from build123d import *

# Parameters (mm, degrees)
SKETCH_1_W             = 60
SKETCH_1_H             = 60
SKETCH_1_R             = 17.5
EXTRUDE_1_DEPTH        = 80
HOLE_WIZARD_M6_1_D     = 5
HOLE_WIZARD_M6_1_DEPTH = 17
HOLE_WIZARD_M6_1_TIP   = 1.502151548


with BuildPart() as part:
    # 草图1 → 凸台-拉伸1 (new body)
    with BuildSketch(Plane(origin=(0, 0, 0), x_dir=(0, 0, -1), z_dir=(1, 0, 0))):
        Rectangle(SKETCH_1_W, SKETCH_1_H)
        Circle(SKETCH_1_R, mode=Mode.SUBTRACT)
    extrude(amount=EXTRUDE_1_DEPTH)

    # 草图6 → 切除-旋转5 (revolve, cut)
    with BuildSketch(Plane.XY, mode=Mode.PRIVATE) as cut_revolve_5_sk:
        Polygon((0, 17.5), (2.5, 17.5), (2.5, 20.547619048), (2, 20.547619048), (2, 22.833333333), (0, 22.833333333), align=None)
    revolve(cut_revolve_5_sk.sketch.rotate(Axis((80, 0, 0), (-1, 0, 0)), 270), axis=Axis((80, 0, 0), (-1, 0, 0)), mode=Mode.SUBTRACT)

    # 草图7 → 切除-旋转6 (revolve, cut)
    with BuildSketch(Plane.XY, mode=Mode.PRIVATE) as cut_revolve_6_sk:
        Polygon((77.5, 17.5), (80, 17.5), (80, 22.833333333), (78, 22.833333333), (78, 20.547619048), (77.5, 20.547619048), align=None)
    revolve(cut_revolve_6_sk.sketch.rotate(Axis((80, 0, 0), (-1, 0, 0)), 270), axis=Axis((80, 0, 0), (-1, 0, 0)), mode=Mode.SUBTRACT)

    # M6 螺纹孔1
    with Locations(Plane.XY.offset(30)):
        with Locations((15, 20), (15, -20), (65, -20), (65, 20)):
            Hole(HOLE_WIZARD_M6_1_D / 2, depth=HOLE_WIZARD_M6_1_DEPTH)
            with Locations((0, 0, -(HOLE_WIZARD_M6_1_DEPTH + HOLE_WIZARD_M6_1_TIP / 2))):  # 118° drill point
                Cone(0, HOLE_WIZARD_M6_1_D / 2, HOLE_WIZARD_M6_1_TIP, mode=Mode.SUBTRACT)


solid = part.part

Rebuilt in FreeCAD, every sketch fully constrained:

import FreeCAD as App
import Part
import Sketcher
Q = App.Units.Quantity


def add_polygon(sketch, points):
    """Adds a closed chain of lines whose ends are joined by coincident constraints."""
    first, n = sketch.GeometryCount, len(points)
    for a, b in zip(points, points[1:] + points[:1]):
        sketch.addGeometry(Part.LineSegment(App.Vector(*a, 0), App.Vector(*b, 0)), False)
    for i in range(n):
        sketch.addConstraint(Sketcher.Constraint("Coincident", first + i, 2, first + (i + 1) % n, 1))

doc = App.newDocument("Part")
body = doc.addObject("PartDesign::Body", "Body")

# Sketch on YZ plane
sketch1 = body.newObject("Sketcher::SketchObject", "Sketch")
sketch1.AttachmentSupport = (doc.getObject("YZ_Plane"), [""])
sketch1.MapMode = "FlatFace"
add_polygon(sketch1, [(30, 30), (-30, 30), (-30, -30), (30, -30)])  # lines 0-3
sketch1.addGeometry(Part.Circle(App.Vector(0, 0, 0), App.Vector(0, 0, 1), 18), False)  # 4
sketch1.addConstraint(Sketcher.Constraint("Horizontal", 0))
sketch1.addConstraint(Sketcher.Constraint("Vertical", 1))
sketch1.addConstraint(Sketcher.Constraint("Horizontal", 2))
sketch1.addConstraint(Sketcher.Constraint("Vertical", 3))
sketch1.addConstraint(Sketcher.Constraint("Coincident", 4, 3, -1, 1))
sketch1.addConstraint(Sketcher.Constraint("Symmetric", 0, 2, 2, 2, -1, 1))
sketch1.addConstraint(Sketcher.Constraint("Equal", 2, 1))
sketch1.addConstraint(Sketcher.Constraint("Diameter", 4, Q("35 mm")))
sketch1.addConstraint(Sketcher.Constraint("DistanceX", 0, 2, 0, 1, Q("60 mm")))
pad1 = body.newObject("PartDesign::Pad", "Pad")
pad1.Profile = sketch1
pad1.Length = 80

# Sketch on XY plane
sketch2 = body.newObject("Sketcher::SketchObject", "Sketch001")
sketch2.AttachmentSupport = (doc.getObject("XY_Plane"), [""])
sketch2.MapMode = "FlatFace"
add_polygon(sketch2, [(0, 17.5), (2.5, 17.5), (2.5, 20.5), (2, 20.5), (2, 22.8), (0, 22.8)])  # lines 0-5
sketch2.addConstraint(Sketcher.Constraint("Horizontal", 0))
sketch2.addConstraint(Sketcher.Constraint("Vertical", 1))
sketch2.addConstraint(Sketcher.Constraint("Horizontal", 2))
sketch2.addConstraint(Sketcher.Constraint("Vertical", 3))
sketch2.addConstraint(Sketcher.Constraint("Horizontal", 4))
sketch2.addConstraint(Sketcher.Constraint("Vertical", 5))
sketch2.addConstraint(Sketcher.Constraint("PointOnObject", 4, 2, -2))
sketch2.addConstraint(Sketcher.Constraint("DistanceX", 4, 2, 4, 1, Q("2 mm")))
sketch2.addConstraint(Sketcher.Constraint("DistanceX", 0, 1, 0, 2, Q("2.5 mm")))
sketch2.addConstraint(Sketcher.Constraint("DistanceY", -1, 1, 0, 2, Q("17.5 mm")))
sketch2.addConstraint(Sketcher.Constraint("DistanceY", 1, 1, 1, 2, Q("3.047619 mm")))
sketch2.addConstraint(Sketcher.Constraint("DistanceY", 3, 1, 3, 2, Q("2.285714 mm")))
groove = body.newObject("PartDesign::Groove", "Groove")
groove.Profile = sketch2
groove.ReferenceAxis = (sketch2, ["H_Axis"])
groove.Angle = 360

# Sketch on XY plane
sketch3 = body.newObject("Sketcher::SketchObject", "Sketch002")
sketch3.AttachmentSupport = (doc.getObject("XY_Plane"), [""])
sketch3.MapMode = "FlatFace"
add_polygon(sketch3, [(77.5, 17.5), (80, 17.5), (80, 22.8), (78, 22.8), (78, 20.5), (77.5, 20.5)])  # lines 0-5
sketch3.addConstraint(Sketcher.Constraint("Horizontal", 0))
sketch3.addConstraint(Sketcher.Constraint("Vertical", 1))
sketch3.addConstraint(Sketcher.Constraint("Horizontal", 2))
sketch3.addConstraint(Sketcher.Constraint("Vertical", 3))
sketch3.addConstraint(Sketcher.Constraint("Horizontal", 4))
sketch3.addConstraint(Sketcher.Constraint("Vertical", 5))
sketch3.addConstraint(Sketcher.Constraint("DistanceX", 2, 2, 2, 1, Q("2 mm")))
sketch3.addConstraint(Sketcher.Constraint("DistanceX", 0, 1, 0, 2, Q("2.5 mm")))
sketch3.addConstraint(Sketcher.Constraint("DistanceX", -1, 1, 0, 2, Q("80 mm")))
sketch3.addConstraint(Sketcher.Constraint("DistanceY", -1, 1, 0, 2, Q("17.5 mm")))
sketch3.addConstraint(Sketcher.Constraint("DistanceY", 5, 2, 5, 1, Q("3.047619 mm")))
sketch3.addConstraint(Sketcher.Constraint("DistanceY", 1, 1, 1, 2, Q("5.333333 mm")))
groove2 = body.newObject("PartDesign::Groove", "Groove001")
groove2.Profile = sketch3
groove2.ReferenceAxis = (sketch3, ["H_Axis"])
groove2.Angle = 360

# Sketch on XY plane
sketch4 = body.newObject("Sketcher::SketchObject", "Sketch003")
sketch4.AttachmentSupport = (doc.getObject("XY_Plane"), [""])
sketch4.MapMode = "FlatFace"
sketch4.AttachmentOffset = App.Placement(App.Vector(0, 0, 30), App.Rotation())
sketch4.addGeometry(Part.Circle(App.Vector(15, 20, 0), App.Vector(0, 0, 1), 2.5), False)
sketch4.addGeometry(Part.Circle(App.Vector(15, -20, 0), App.Vector(0, 0, 1), 2.5), False)
sketch4.addGeometry(Part.Circle(App.Vector(65, -20, 0), App.Vector(0, 0, 1), 2.5), False)
sketch4.addGeometry(Part.Circle(App.Vector(65, 20, 0), App.Vector(0, 0, 1), 2.5), False)
sketch4.addConstraint(Sketcher.Constraint("Equal", 0, 1))
sketch4.addConstraint(Sketcher.Constraint("Equal", 1, 2))
sketch4.addConstraint(Sketcher.Constraint("Equal", 2, 3))
sketch4.addConstraint(Sketcher.Constraint("Symmetric", 0, 3, 1, 3, -1))
sketch4.addConstraint(Sketcher.Constraint("Symmetric", 2, 3, 3, 3, -1))
sketch4.addConstraint(Sketcher.Constraint("Horizontal", 1, 3, 2, 3))
sketch4.addConstraint(Sketcher.Constraint("Diameter", 0, Q("5 mm")))
sketch4.addConstraint(Sketcher.Constraint("DistanceX", -1, 1, 0, 3, Q("15 mm")))
sketch4.addConstraint(Sketcher.Constraint("DistanceY", -1, 1, 0, 3, Q("20 mm")))
sketch4.addConstraint(Sketcher.Constraint("DistanceX", -1, 1, 2, 3, Q("65 mm")))
doc.recompute()
hole = body.newObject("PartDesign::Hole", "Hole")
hole.Profile = sketch4
hole.ThreadType = "None"
hole.Diameter = 5
hole.DepthType = "Dimension"
hole.Depth = 17
hole.DrillPoint = "Angled"
hole.DrillPointAngle = 118

doc.recompute()
